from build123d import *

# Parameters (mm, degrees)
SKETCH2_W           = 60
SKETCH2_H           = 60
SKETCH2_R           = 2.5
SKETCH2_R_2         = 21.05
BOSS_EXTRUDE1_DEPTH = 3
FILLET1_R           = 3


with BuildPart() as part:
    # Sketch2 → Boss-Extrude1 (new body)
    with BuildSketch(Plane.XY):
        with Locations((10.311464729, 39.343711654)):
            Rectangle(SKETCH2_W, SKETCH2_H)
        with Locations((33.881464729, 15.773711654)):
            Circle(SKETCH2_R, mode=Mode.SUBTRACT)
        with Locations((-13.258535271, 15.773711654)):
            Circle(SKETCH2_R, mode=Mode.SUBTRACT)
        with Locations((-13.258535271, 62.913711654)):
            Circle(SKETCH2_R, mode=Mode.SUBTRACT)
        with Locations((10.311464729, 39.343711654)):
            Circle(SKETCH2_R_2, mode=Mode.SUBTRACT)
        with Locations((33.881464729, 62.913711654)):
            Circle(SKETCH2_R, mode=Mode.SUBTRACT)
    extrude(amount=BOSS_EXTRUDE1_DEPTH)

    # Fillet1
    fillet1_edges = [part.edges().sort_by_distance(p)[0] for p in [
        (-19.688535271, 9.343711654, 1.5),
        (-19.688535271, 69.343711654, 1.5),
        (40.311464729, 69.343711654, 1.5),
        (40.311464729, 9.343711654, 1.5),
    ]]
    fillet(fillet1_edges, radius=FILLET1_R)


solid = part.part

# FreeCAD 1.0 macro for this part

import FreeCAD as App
import Part
import Sketcher
from FreeCAD import Vector


def edges_at(feature, points):
    """Names of the edges that pass closest to the given points."""
    edges = feature.Shape.Edges
    near = lambda p: min(range(len(edges)), key=lambda i: edges[i].distToShape(Part.Vertex(*p))[0])
    return sorted({f"Edge{near(p) + 1}" for p in points})


def add_polygon(sketch, points):
    """Adds a closed chain of lines whose ends are joined by coincident constraints."""
    first, n = sketch.GeometryCount, len(points)
    for a, b in zip(points, points[1:] + points[:1]):
        sketch.addGeometry(Part.LineSegment(App.Vector(*a, 0), App.Vector(*b, 0)), False)
    for i in range(n):
        sketch.addConstraint(Sketcher.Constraint("Coincident", first + i, 2, first + (i + 1) % n, 1))

doc = App.newDocument("Part")
body = doc.addObject("PartDesign::Body", "Body")

# Sketch on XY plane
sketch1 = body.newObject("Sketcher::SketchObject", "Sketch")
sketch1.AttachmentSupport = (doc.getObject("XY_Plane"), [""])
sketch1.MapMode = "FlatFace"
add_polygon(sketch1, [(-19.7, 69.3), (-19.7, 9.3), (40.3, 9.3), (40.3, 69.3)])  # lines 0-3
sketch1.addGeometry(Part.Circle(Vector(-13.3, 15.8, 0), Vector(0, 0, 1), 2.5), False)  # 4
sketch1.addGeometry(Part.Circle(Vector(33.9, 15.8, 0), Vector(0, 0, 1), 2.5), False)  # 5
sketch1.addGeometry(Part.Circle(Vector(-13.3, 62.9, 0), Vector(0, 0, 1), 2.5), False)  # 6
sketch1.addGeometry(Part.Circle(Vector(10.3, 39.3, 0), Vector(0, 0, 1), 21.1), False)  # 7
sketch1.addGeometry(Part.Circle(Vector(33.9, 62.9, 0), Vector(0, 0, 1), 2.5), False)  # 8
sketch1.addConstraint(Sketcher.Constraint("Vertical", 0))
sketch1.addConstraint(Sketcher.Constraint("Horizontal", 1))
sketch1.addConstraint(Sketcher.Constraint("Vertical", 2))
sketch1.addConstraint(Sketcher.Constraint("Horizontal", 3))
sketch1.addConstraint(Sketcher.Constraint("Equal", 4, 5))
sketch1.addConstraint(Sketcher.Constraint("Equal", 5, 6))
sketch1.addConstraint(Sketcher.Constraint("Equal", 6, 8))
sketch1.addConstraint(Sketcher.Constraint("Horizontal", 4, 3, 5, 3))
sketch1.addConstraint(Sketcher.Constraint("Horizontal", 6, 3, 8, 3))
sketch1.addConstraint(Sketcher.Constraint("Vertical", 4, 3, 6, 3))
sketch1.addConstraint(Sketcher.Constraint("Vertical", 5, 3, 8, 3))
sketch1.addConstraint(Sketcher.Constraint("Equal", 3, 0))
sketch1.addConstraint(Sketcher.Constraint("Diameter", 4, 5.0))
sketch1.addConstraint(Sketcher.Constraint("Diameter", 7, 42.1))
sketch1.addConstraint(Sketcher.Constraint("DistanceX", 1, 1, 1, 2, 60.0))
sketch1.addConstraint(Sketcher.Constraint("DistanceX", 0, 2, 7, 3, 30.0))
sketch1.addConstraint(Sketcher.Constraint("DistanceY", 0, 2, 7, 3, 30.0))
sketch1.addConstraint(Sketcher.Constraint("DistanceX", 4, 3, 5, 3, 47.14))
sketch1.addConstraint(Sketcher.Constraint("DistanceY", 4, 3, 6, 3, 47.14))
sketch1.addConstraint(Sketcher.Constraint("DistanceX", 6, 3, 7, 3, 23.57))
sketch1.addConstraint(Sketcher.Constraint("DistanceY", 7, 3, 6, 3, 23.57))
sketch1.addConstraint(Sketcher.Constraint("DistanceY", -1, 1, 4, 3, 15.773712))
sketch1.addConstraint(Sketcher.Constraint("DistanceX", 4, 3, -1, 1, 13.258535))
pad1 = body.newObject("PartDesign::Pad", "Pad")
pad1.Profile = sketch1
pad1.Length = 3
doc.recompute()

fillet = body.newObject("PartDesign::Fillet", "Fillet")
fillet.Base = (pad1, edges_at(pad1, [
    (-19.689, 9.344, 1.5),
    (-19.689, 69.344, 1.5),
    (40.311, 69.344, 1.5),
    (40.311, 9.344, 1.5),
]))
fillet.Radius = 3

doc.recompute()
